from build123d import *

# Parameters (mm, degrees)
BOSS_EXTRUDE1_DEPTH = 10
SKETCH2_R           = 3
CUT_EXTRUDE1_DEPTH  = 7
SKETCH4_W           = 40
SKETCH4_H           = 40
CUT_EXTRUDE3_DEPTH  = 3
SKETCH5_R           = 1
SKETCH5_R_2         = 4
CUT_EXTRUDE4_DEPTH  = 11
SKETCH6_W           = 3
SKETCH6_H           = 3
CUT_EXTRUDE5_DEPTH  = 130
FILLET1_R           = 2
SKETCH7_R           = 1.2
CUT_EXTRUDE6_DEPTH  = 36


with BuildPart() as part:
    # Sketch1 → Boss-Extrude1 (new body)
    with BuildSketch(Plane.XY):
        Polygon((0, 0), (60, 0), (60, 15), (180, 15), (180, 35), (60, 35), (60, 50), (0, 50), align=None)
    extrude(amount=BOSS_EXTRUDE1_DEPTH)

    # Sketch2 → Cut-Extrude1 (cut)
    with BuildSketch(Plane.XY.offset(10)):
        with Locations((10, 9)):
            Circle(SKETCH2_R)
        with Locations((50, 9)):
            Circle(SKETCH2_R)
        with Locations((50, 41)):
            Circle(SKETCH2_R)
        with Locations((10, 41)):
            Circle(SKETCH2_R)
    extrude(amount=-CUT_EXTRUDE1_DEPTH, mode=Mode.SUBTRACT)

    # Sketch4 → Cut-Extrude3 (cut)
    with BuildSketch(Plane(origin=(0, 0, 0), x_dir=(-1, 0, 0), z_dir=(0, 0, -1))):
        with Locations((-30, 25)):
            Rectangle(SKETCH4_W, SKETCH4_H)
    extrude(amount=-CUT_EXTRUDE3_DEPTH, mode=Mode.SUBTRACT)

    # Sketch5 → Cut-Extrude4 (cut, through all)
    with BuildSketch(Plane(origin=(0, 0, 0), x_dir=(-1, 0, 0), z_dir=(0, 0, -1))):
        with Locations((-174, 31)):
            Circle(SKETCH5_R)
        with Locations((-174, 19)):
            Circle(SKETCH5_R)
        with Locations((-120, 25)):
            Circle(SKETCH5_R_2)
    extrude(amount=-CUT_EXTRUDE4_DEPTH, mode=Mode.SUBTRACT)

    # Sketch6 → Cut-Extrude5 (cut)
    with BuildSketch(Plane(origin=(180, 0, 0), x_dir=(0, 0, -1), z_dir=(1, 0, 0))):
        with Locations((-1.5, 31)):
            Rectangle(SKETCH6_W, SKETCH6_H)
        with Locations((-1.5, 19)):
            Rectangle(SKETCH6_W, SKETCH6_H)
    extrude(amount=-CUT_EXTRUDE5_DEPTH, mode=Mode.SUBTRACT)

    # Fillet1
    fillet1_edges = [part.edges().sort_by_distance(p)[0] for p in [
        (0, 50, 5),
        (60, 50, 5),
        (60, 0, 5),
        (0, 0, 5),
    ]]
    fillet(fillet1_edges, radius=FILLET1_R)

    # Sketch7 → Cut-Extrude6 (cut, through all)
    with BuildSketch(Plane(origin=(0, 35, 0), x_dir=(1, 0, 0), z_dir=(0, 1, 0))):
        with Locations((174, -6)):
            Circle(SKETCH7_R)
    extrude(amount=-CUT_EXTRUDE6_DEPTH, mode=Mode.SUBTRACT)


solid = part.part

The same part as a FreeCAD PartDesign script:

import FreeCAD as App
import Part
import Sketcher


def edges_at(feature, points):
    """Names of the edges that pass closest to the given points."""
    edges = feature.Shape.Edges
    near = lambda p: min(range(len(edges)), key=lambda i: edges[i].distToShape(Part.Vertex(*p))[0])
    return sorted({f"Edge{near(p) + 1}" for p in points})


def add_polygon(sketch, points):
    """Adds a closed chain of lines whose ends are joined by coincident constraints."""
    first, n = sketch.GeometryCount, len(points)
    for a, b in zip(points, points[1:] + points[:1]):
        sketch.addGeometry(Part.LineSegment(App.Vector(*a, 0), App.Vector(*b, 0)), False)
    for i in range(n):
        sketch.addConstraint(Sketcher.Constraint("Coincident", first + i, 2, first + (i + 1) % n, 1))

doc = App.newDocument("Part")
body = doc.addObject("PartDesign::Body", "Body")

# Sketch on XY plane
sketch1 = body.newObject("Sketcher::SketchObject", "Sketch")
sketch1.AttachmentSupport = (doc.getObject("XY_Plane"), [""])
sketch1.MapMode = "FlatFace"
add_polygon(sketch1, [(0, 0), (60, 0), (60, 15), (180, 15), (180, 35), (60, 35), (60, 50), (0, 50)])  # lines 0-7
sketch1.addConstraint(Sketcher.Constraint("Horizontal", 0))
sketch1.addConstraint(Sketcher.Constraint("Vertical", 1))
sketch1.addConstraint(Sketcher.Constraint("Horizontal", 2))
sketch1.addConstraint(Sketcher.Constraint("Vertical", 3))
sketch1.addConstraint(Sketcher.Constraint("Horizontal", 4))
sketch1.addConstraint(Sketcher.Constraint("Vertical", 5))
sketch1.addConstraint(Sketcher.Constraint("Horizontal", 6))
sketch1.addConstraint(Sketcher.Constraint("Vertical", 7))
sketch1.addConstraint(Sketcher.Constraint("Coincident", 7, 2, -1, 1))
sketch1.addConstraint(Sketcher.Constraint("Vertical", 1, 2, 4, 2))
sketch1.addConstraint(Sketcher.Constraint("Equal", 1, 5))
sketch1.addConstraint(Sketcher.Constraint("DistanceX", 0, 1, 0, 2, 60.0))
sketch1.addConstraint(Sketcher.Constraint("DistanceX", 2, 1, 2, 2, 120.0))
sketch1.addConstraint(Sketcher.Constraint("DistanceY", 1, 1, 1, 2, 15.0))
sketch1.addConstraint(Sketcher.Constraint("DistanceY", 3, 1, 3, 2, 20.0))
pad1 = body.newObject("PartDesign::Pad", "Pad")
pad1.Profile = sketch1
pad1.Length = 10

# Sketch on XY plane
sketch2 = body.newObject("Sketcher::SketchObject", "Sketch001")
sketch2.AttachmentSupport = (doc.getObject("XY_Plane"), [""])
sketch2.MapMode = "FlatFace"
sketch2.AttachmentOffset = App.Placement(App.Vector(0, 0, 10), App.Rotation())
sketch2.addGeometry(Part.Circle(App.Vector(10, 9, 0), App.Vector(0, 0, 1), 3), False)
sketch2.addGeometry(Part.Circle(App.Vector(50, 9, 0), App.Vector(0, 0, 1), 3), False)
sketch2.addGeometry(Part.Circle(App.Vector(50, 41, 0), App.Vector(0, 0, 1), 3), False)
sketch2.addGeometry(Part.Circle(App.Vector(10, 41, 0), App.Vector(0, 0, 1), 3), False)
sketch2.addConstraint(Sketcher.Constraint("Equal", 0, 1))
sketch2.addConstraint(Sketcher.Constraint("Equal", 1, 2))
sketch2.addConstraint(Sketcher.Constraint("Equal", 2, 3))
sketch2.addConstraint(Sketcher.Constraint("Horizontal", 0, 3, 1, 3))
sketch2.addConstraint(Sketcher.Constraint("Horizontal", 2, 3, 3, 3))
sketch2.addConstraint(Sketcher.Constraint("Vertical", 1, 3, 2, 3))
sketch2.addConstraint(Sketcher.Constraint("Vertical", 0, 3, 3, 3))
sketch2.addConstraint(Sketcher.Constraint("Diameter", 0, 6.0))
sketch2.addConstraint(Sketcher.Constraint("DistanceX", -1, 1, 0, 3, 10.0))
sketch2.addConstraint(Sketcher.Constraint("DistanceY", -1, 1, 0, 3, 9.0))
sketch2.addConstraint(Sketcher.Constraint("DistanceX", -1, 1, 1, 3, 50.0))
sketch2.addConstraint(Sketcher.Constraint("DistanceY", -1, 1, 2, 3, 41.0))
pocket1 = body.newObject("PartDesign::Pocket", "Pocket")
pocket1.Profile = sketch2
pocket1.Length = 7

# Sketch on XY plane
sketch3 = body.newObject("Sketcher::SketchObject", "Sketch002")
sketch3.AttachmentSupport = (doc.getObject("XY_Plane"), [""])
sketch3.MapMode = "FlatFace"
add_polygon(sketch3, [(50, 45), (50, 5), (10, 5), (10, 45)])  # lines 0-3
sketch3.addConstraint(Sketcher.Constraint("Vertical", 0))
sketch3.addConstraint(Sketcher.Constraint("Horizontal", 1))
sketch3.addConstraint(Sketcher.Constraint("Vertical", 2))
sketch3.addConstraint(Sketcher.Constraint("Horizontal", 3))
sketch3.addConstraint(Sketcher.Constraint("Equal", 3, 0))
sketch3.addConstraint(Sketcher.Constraint("DistanceX", 1, 2, 1, 1, 40.0))
sketch3.addConstraint(Sketcher.Constraint("DistanceX", -1, 1, 0, 2, 50.0))
sketch3.addConstraint(Sketcher.Constraint("DistanceY", -1, 1, 0, 2, 5.0))
pocket2 = body.newObject("PartDesign::Pocket", "Pocket001")
pocket2.Profile = sketch3
pocket2.Length = 3
pocket2.Reversed = True

# Sketch on XY plane
sketch4 = body.newObject("Sketcher::SketchObject", "Sketch003")
sketch4.AttachmentSupport = (doc.getObject("XY_Plane"), [""])
sketch4.MapMode = "FlatFace"
sketch4.addGeometry(Part.Circle(App.Vector(174, 31, 0), App.Vector(0, 0, 1), 1), False)
sketch4.addGeometry(Part.Circle(App.Vector(174, 19, 0), App.Vector(0, 0, 1), 1), False)
sketch4.addGeometry(Part.Circle(App.Vector(120, 25, 0), App.Vector(0, 0, 1), 4), False)
sketch4.addConstraint(Sketcher.Constraint("Equal", 0, 1))
sketch4.addConstraint(Sketcher.Constraint("Vertical", 0, 3, 1, 3))
sketch4.addConstraint(Sketcher.Constraint("Diameter", 0, 2.0))
sketch4.addConstraint(Sketcher.Constraint("Diameter", 2, 8.0))
sketch4.addConstraint(Sketcher.Constraint("DistanceX", -1, 1, 0, 3, 174.0))
sketch4.addConstraint(Sketcher.Constraint("DistanceY", -1, 1, 0, 3, 31.0))
sketch4.addConstraint(Sketcher.Constraint("DistanceY", -1, 1, 1, 3, 19.0))
sketch4.addConstraint(Sketcher.Constraint("DistanceX", -1, 1, 2, 3, 120.0))
sketch4.addConstraint(Sketcher.Constraint("DistanceY", -1, 1, 2, 3, 25.0))
pocket3 = body.newObject("PartDesign::Pocket", "Pocket002")
pocket3.Profile = sketch4
pocket3.Type = "ThroughAll"
pocket3.Reversed = True

# Sketch on YZ plane
sketch5 = body.newObject("Sketcher::SketchObject", "Sketch004")
sketch5.AttachmentSupport = (doc.getObject("YZ_Plane"), [""])
sketch5.MapMode = "FlatFace"
sketch5.AttachmentOffset = App.Placement(App.Vector(0, 0, 180), App.Rotation())
add_polygon(sketch5, [(32.5, 3), (29.5, 3), (29.5, 0), (32.5, 0)])  # lines 0-3
add_polygon(sketch5, [(20.5, 3), (17.5, 3), (17.5, 0), (20.5, 0)])  # lines 4-7
sketch5.addConstraint(Sketcher.Constraint("Horizontal", 0))
sketch5.addConstraint(Sketcher.Constraint("Vertical", 1))
sketch5.addConstraint(Sketcher.Constraint("Horizontal", 2))
sketch5.addConstraint(Sketcher.Constraint("Vertical", 3))
sketch5.addConstraint(Sketcher.Constraint("Horizontal", 4))
sketch5.addConstraint(Sketcher.Constraint("Vertical", 5))
sketch5.addConstraint(Sketcher.Constraint("Horizontal", 6))
sketch5.addConstraint(Sketcher.Constraint("Vertical", 7))
sketch5.addConstraint(Sketcher.Constraint("PointOnObject", 1, 2, -1))
sketch5.addConstraint(Sketcher.Constraint("PointOnObject", 5, 2, -1))
sketch5.addConstraint(Sketcher.Constraint("Horizontal", 3, 2, 4, 2))
sketch5.addConstraint(Sketcher.Constraint("Equal", 2, 4))
sketch5.addConstraint(Sketcher.Constraint("Equal", 6, 1))
sketch5.addConstraint(Sketcher.Constraint("DistanceX", 0, 2, 0, 1, 3.0))
sketch5.addConstraint(Sketcher.Constraint("DistanceX", 4, 2, 0, 2, 12.0))
sketch5.addConstraint(Sketcher.Constraint("DistanceX", -1, 1, 0, 2, 29.5))
pocket4 = body.newObject("PartDesign::Pocket", "Pocket003")
pocket4.Profile = sketch5
pocket4.Length = 130
doc.recompute()

fillet = body.newObject("PartDesign::Fillet", "Fillet")
fillet.Base = (pocket4, edges_at(pocket4, [
    (0, 50, 5),
    (60, 50, 5),
    (60, 0, 5),
    (0, 0, 5),
]))
fillet.Radius = 2

# Sketch on XZ plane
sketch6 = body.newObject("Sketcher::SketchObject", "Sketch005")
sketch6.AttachmentSupport = (doc.getObject("XZ_Plane"), [""])
sketch6.MapMode = "FlatFace"
sketch6.AttachmentOffset = App.Placement(App.Vector(0, 0, -35), App.Rotation())
sketch6.addGeometry(Part.Circle(App.Vector(174, 6, 0), App.Vector(0, 0, 1), 1.2), False)
sketch6.addConstraint(Sketcher.Constraint("Diameter", 0, 2.4))
sketch6.addConstraint(Sketcher.Constraint("DistanceX", -1, 1, 0, 3, 174.0))
sketch6.addConstraint(Sketcher.Constraint("DistanceY", -1, 1, 0, 3, 6.0))
pocket5 = body.newObject("PartDesign::Pocket", "Pocket004")
pocket5.Profile = sketch6
pocket5.Type = "ThroughAll"
pocket5.Reversed = True

doc.recompute()
